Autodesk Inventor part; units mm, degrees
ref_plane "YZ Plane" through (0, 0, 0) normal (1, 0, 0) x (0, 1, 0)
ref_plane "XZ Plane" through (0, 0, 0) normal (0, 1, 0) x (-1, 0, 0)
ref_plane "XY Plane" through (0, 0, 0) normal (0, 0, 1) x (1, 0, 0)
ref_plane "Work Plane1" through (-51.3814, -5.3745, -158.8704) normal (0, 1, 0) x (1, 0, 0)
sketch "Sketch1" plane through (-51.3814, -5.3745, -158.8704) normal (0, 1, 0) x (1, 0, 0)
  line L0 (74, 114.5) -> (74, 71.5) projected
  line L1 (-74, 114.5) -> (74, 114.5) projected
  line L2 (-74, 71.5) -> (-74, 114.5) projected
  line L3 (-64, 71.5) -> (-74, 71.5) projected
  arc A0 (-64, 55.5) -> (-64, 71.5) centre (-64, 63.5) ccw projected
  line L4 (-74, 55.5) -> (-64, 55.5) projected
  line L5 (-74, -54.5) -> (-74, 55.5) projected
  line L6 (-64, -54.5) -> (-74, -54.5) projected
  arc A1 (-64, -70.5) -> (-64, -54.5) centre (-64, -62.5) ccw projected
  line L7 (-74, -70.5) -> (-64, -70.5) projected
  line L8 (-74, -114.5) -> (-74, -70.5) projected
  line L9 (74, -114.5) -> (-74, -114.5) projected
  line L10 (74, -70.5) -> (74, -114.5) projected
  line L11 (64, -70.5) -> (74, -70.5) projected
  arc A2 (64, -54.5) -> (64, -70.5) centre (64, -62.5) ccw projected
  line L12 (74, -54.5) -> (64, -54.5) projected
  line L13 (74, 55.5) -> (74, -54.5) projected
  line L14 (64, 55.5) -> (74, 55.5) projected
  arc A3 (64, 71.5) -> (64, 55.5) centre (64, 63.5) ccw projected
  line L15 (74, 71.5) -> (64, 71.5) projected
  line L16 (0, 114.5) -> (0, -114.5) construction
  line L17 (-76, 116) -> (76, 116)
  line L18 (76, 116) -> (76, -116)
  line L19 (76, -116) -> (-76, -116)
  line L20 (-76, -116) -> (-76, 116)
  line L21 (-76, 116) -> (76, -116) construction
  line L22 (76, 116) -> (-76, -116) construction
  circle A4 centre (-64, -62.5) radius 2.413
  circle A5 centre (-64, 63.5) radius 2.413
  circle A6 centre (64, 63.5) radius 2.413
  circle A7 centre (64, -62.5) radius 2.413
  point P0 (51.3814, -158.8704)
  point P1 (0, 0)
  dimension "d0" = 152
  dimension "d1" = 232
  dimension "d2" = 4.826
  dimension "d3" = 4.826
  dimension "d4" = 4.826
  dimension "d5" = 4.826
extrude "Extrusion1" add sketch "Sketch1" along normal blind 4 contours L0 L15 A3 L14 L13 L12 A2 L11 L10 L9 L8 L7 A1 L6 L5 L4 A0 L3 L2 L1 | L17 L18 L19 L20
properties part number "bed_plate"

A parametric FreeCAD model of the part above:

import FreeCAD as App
import Part
import Sketcher
Q = App.Units.Quantity

doc = App.newDocument("Part")
params = doc.addObject("Spreadsheet::Sheet", "Params")
for row, (alias, value) in enumerate([
    ("sketch1_width", "152 mm"),
    ("sketch1_height", "232 mm"),
    ("pad1_length", "4 mm"),
], start=1):
    params.set(f"A{row}", alias)
    params.set(f"B{row}", "=" + value)
    params.setAlias(f"B{row}", alias)

body = doc.addObject("PartDesign::Body", "Body")

sketch1 = body.newObject("Sketcher::SketchObject", "Sketch")
sketch1.AttachmentSupport = (doc.getObject("XZ_Plane"), [""])
sketch1.MapMode = "FlatFace"
sketch1.AttachmentOffset = App.Placement(App.Vector(0, 0, 5.3745), App.Rotation())
sketch1.addGeometry([
    Part.LineSegment(App.Vector(24.6, -274.9, 0), App.Vector(-127.4, -274.9, 0)),
    Part.LineSegment(App.Vector(-127.4, -274.9, 0), App.Vector(-127.4, -42.9, 0)),
    Part.LineSegment(App.Vector(-127.4, -42.9, 0), App.Vector(24.6, -42.9, 0)),
    Part.LineSegment(App.Vector(24.6, -42.9, 0), App.Vector(24.6, -274.9, 0)),
    Part.Circle(App.Vector(-115.4, -96.4, 0), App.Vector(0, 0, 1), 2.4),
    Part.Circle(App.Vector(12.6, -96.4, 0), App.Vector(0, 0, 1), 2.4),
    Part.Circle(App.Vector(-115.4, -222.4, 0), App.Vector(0, 0, 1), 2.4),
    Part.Circle(App.Vector(12.6, -222.4, 0), App.Vector(0, 0, 1), 2.4),
], False)
sketch1.addConstraint([
    Sketcher.Constraint("Coincident", 0, 2, 1, 1),
    Sketcher.Constraint("Coincident", 1, 2, 2, 1),
    Sketcher.Constraint("Coincident", 2, 2, 3, 1),
    Sketcher.Constraint("Coincident", 3, 2, 0, 1),
    Sketcher.Constraint("Horizontal", 0),
    Sketcher.Constraint("Vertical", 1),
    Sketcher.Constraint("Horizontal", 2),
    Sketcher.Constraint("Vertical", 3),
    Sketcher.Constraint("Equal", 4, 5),
    Sketcher.Constraint("Equal", 5, 6),
    Sketcher.Constraint("Equal", 6, 7),
    Sketcher.Constraint("Horizontal", 4, 3, 5, 3),
    Sketcher.Constraint("Horizontal", 6, 3, 7, 3),
    Sketcher.Constraint("Vertical", 4, 3, 6, 3),
    Sketcher.Constraint("Vertical", 5, 3, 7, 3),
    Sketcher.Constraint("DistanceX", 0, 2, 0, 1, Q("152 mm")),
    Sketcher.Constraint("DistanceY", 1, 1, 1, 2, Q("232 mm")),
    Sketcher.Constraint("Diameter", 4, Q("4.826 mm")),
    Sketcher.Constraint("DistanceX", 4, 3, 5, 3, Q("128 mm")),
    Sketcher.Constraint("DistanceY", 6, 3, 4, 3, Q("126 mm")),
    Sketcher.Constraint("DistanceX", 0, 2, 6, 3, Q("12 mm")),
    Sketcher.Constraint("DistanceY", 0, 2, 6, 3, Q("52.5 mm")),
    Sketcher.Constraint("DistanceX", 4, 3, -1, 1, Q("115.3814 mm")),
    Sketcher.Constraint("DistanceY", 4, 3, -1, 1, Q("96.3704 mm")),
])
sketch1.setExpression("Constraints[15]", "Params.sketch1_width")
sketch1.setExpression("Constraints[16]", "Params.sketch1_height")
pad1 = body.newObject("PartDesign::Pad", "Pad")
pad1.Profile = sketch1
pad1.setExpression("Length", "Params.pad1_length")
pad1.Reversed = True

doc.recompute()
